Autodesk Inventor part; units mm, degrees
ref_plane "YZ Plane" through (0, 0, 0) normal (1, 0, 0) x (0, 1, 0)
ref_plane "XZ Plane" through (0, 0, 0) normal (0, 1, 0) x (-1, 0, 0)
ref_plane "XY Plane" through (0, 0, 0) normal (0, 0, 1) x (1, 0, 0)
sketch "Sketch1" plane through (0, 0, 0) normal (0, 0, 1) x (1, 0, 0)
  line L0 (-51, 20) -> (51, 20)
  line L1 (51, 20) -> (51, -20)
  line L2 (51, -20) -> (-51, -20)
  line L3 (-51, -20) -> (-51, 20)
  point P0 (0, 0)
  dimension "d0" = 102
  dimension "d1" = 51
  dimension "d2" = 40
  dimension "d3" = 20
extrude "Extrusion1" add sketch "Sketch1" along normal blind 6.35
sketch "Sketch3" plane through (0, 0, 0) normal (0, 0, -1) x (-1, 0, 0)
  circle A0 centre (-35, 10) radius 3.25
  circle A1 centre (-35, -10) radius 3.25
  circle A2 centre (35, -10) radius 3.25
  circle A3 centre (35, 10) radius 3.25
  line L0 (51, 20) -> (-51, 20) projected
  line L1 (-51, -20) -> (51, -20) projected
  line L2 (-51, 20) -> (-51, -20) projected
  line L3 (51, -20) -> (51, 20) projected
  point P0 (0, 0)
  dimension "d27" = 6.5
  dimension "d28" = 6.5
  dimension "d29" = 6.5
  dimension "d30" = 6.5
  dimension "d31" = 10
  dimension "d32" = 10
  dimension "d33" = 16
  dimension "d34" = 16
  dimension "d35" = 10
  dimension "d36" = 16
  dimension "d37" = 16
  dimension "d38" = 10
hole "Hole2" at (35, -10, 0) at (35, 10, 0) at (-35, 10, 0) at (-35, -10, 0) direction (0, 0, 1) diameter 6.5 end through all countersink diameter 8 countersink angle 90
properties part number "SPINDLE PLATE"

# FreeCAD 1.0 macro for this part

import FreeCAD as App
import Part
import Sketcher
from FreeCAD import Vector
Q = App.Units.Quantity

doc = App.newDocument("Part")
body = doc.addObject("PartDesign::Body", "Body")

# Sketch on XY plane
sketch1 = body.newObject("Sketcher::SketchObject", "Sketch")
sketch1.AttachmentSupport = (doc.getObject("XY_Plane"), [""])
sketch1.MapMode = "FlatFace"
sketch1.addGeometry([
    Part.LineSegment(Vector(51, 20, 0), Vector(-51, 20, 0)),
    Part.LineSegment(Vector(-51, 20, 0), Vector(-51, -20, 0)),
    Part.LineSegment(Vector(-51, -20, 0), Vector(51, -20, 0)),
    Part.LineSegment(Vector(51, -20, 0), Vector(51, 20, 0)),
], False)
sketch1.addConstraint([
    Sketcher.Constraint("Coincident", 0, 2, 1, 1),
    Sketcher.Constraint("Coincident", 1, 2, 2, 1),
    Sketcher.Constraint("Coincident", 2, 2, 3, 1),
    Sketcher.Constraint("Coincident", 3, 2, 0, 1),
    Sketcher.Constraint("Horizontal", 0),
    Sketcher.Constraint("Vertical", 1),
    Sketcher.Constraint("Horizontal", 2),
    Sketcher.Constraint("Vertical", 3),
    Sketcher.Constraint("Symmetric", 0, 2, 2, 2, -1, 1),
    Sketcher.Constraint("DistanceX", 0, 2, 0, 1, Q("102 mm")),
    Sketcher.Constraint("DistanceY", 1, 2, 1, 1, Q("40 mm")),
])
pad1 = body.newObject("PartDesign::Pad", "Pad")
pad1.Profile = sketch1
pad1.Length = 6.35

# Sketch on XY plane
sketch2 = body.newObject("Sketcher::SketchObject", "Sketch001")
sketch2.AttachmentSupport = (doc.getObject("XY_Plane"), [""])
sketch2.MapMode = "FlatFace"
sketch2.addGeometry([
    Part.Circle(Vector(35, -10, 0), Vector(0, 0, 1), 3.2),
    Part.Circle(Vector(35, 10, 0), Vector(0, 0, 1), 3.2),
    Part.Circle(Vector(-35, 10, 0), Vector(0, 0, 1), 3.2),
    Part.Circle(Vector(-35, -10, 0), Vector(0, 0, 1), 3.2),
], False)
sketch2.addConstraint([
    Sketcher.Constraint("Equal", 0, 1),
    Sketcher.Constraint("Equal", 1, 2),
    Sketcher.Constraint("Equal", 2, 3),
    Sketcher.Constraint("Symmetric", 0, 3, 2, 3, -1, 1),
    Sketcher.Constraint("Symmetric", 1, 3, 3, 3, -1, 1),
    Sketcher.Constraint("Symmetric", 1, 3, 2, 3, -2),
    Sketcher.Constraint("Diameter", 0, Q("6.5 mm")),
    Sketcher.Constraint("DistanceX", -1, 1, 0, 3, Q("35 mm")),
    Sketcher.Constraint("DistanceY", 0, 3, -1, 1, Q("10 mm")),
])
doc.recompute()
hole = body.newObject("PartDesign::Hole", "Hole")
hole.Profile = sketch2
hole.ThreadType = "None"
hole.Diameter = 6.5
hole.DepthType = "ThroughAll"
hole.HoleCutType = "Countersink"
hole.HoleCutDiameter = 8
hole.HoleCutCountersinkAngle = 90
hole.Reversed = True

doc.recompute()
